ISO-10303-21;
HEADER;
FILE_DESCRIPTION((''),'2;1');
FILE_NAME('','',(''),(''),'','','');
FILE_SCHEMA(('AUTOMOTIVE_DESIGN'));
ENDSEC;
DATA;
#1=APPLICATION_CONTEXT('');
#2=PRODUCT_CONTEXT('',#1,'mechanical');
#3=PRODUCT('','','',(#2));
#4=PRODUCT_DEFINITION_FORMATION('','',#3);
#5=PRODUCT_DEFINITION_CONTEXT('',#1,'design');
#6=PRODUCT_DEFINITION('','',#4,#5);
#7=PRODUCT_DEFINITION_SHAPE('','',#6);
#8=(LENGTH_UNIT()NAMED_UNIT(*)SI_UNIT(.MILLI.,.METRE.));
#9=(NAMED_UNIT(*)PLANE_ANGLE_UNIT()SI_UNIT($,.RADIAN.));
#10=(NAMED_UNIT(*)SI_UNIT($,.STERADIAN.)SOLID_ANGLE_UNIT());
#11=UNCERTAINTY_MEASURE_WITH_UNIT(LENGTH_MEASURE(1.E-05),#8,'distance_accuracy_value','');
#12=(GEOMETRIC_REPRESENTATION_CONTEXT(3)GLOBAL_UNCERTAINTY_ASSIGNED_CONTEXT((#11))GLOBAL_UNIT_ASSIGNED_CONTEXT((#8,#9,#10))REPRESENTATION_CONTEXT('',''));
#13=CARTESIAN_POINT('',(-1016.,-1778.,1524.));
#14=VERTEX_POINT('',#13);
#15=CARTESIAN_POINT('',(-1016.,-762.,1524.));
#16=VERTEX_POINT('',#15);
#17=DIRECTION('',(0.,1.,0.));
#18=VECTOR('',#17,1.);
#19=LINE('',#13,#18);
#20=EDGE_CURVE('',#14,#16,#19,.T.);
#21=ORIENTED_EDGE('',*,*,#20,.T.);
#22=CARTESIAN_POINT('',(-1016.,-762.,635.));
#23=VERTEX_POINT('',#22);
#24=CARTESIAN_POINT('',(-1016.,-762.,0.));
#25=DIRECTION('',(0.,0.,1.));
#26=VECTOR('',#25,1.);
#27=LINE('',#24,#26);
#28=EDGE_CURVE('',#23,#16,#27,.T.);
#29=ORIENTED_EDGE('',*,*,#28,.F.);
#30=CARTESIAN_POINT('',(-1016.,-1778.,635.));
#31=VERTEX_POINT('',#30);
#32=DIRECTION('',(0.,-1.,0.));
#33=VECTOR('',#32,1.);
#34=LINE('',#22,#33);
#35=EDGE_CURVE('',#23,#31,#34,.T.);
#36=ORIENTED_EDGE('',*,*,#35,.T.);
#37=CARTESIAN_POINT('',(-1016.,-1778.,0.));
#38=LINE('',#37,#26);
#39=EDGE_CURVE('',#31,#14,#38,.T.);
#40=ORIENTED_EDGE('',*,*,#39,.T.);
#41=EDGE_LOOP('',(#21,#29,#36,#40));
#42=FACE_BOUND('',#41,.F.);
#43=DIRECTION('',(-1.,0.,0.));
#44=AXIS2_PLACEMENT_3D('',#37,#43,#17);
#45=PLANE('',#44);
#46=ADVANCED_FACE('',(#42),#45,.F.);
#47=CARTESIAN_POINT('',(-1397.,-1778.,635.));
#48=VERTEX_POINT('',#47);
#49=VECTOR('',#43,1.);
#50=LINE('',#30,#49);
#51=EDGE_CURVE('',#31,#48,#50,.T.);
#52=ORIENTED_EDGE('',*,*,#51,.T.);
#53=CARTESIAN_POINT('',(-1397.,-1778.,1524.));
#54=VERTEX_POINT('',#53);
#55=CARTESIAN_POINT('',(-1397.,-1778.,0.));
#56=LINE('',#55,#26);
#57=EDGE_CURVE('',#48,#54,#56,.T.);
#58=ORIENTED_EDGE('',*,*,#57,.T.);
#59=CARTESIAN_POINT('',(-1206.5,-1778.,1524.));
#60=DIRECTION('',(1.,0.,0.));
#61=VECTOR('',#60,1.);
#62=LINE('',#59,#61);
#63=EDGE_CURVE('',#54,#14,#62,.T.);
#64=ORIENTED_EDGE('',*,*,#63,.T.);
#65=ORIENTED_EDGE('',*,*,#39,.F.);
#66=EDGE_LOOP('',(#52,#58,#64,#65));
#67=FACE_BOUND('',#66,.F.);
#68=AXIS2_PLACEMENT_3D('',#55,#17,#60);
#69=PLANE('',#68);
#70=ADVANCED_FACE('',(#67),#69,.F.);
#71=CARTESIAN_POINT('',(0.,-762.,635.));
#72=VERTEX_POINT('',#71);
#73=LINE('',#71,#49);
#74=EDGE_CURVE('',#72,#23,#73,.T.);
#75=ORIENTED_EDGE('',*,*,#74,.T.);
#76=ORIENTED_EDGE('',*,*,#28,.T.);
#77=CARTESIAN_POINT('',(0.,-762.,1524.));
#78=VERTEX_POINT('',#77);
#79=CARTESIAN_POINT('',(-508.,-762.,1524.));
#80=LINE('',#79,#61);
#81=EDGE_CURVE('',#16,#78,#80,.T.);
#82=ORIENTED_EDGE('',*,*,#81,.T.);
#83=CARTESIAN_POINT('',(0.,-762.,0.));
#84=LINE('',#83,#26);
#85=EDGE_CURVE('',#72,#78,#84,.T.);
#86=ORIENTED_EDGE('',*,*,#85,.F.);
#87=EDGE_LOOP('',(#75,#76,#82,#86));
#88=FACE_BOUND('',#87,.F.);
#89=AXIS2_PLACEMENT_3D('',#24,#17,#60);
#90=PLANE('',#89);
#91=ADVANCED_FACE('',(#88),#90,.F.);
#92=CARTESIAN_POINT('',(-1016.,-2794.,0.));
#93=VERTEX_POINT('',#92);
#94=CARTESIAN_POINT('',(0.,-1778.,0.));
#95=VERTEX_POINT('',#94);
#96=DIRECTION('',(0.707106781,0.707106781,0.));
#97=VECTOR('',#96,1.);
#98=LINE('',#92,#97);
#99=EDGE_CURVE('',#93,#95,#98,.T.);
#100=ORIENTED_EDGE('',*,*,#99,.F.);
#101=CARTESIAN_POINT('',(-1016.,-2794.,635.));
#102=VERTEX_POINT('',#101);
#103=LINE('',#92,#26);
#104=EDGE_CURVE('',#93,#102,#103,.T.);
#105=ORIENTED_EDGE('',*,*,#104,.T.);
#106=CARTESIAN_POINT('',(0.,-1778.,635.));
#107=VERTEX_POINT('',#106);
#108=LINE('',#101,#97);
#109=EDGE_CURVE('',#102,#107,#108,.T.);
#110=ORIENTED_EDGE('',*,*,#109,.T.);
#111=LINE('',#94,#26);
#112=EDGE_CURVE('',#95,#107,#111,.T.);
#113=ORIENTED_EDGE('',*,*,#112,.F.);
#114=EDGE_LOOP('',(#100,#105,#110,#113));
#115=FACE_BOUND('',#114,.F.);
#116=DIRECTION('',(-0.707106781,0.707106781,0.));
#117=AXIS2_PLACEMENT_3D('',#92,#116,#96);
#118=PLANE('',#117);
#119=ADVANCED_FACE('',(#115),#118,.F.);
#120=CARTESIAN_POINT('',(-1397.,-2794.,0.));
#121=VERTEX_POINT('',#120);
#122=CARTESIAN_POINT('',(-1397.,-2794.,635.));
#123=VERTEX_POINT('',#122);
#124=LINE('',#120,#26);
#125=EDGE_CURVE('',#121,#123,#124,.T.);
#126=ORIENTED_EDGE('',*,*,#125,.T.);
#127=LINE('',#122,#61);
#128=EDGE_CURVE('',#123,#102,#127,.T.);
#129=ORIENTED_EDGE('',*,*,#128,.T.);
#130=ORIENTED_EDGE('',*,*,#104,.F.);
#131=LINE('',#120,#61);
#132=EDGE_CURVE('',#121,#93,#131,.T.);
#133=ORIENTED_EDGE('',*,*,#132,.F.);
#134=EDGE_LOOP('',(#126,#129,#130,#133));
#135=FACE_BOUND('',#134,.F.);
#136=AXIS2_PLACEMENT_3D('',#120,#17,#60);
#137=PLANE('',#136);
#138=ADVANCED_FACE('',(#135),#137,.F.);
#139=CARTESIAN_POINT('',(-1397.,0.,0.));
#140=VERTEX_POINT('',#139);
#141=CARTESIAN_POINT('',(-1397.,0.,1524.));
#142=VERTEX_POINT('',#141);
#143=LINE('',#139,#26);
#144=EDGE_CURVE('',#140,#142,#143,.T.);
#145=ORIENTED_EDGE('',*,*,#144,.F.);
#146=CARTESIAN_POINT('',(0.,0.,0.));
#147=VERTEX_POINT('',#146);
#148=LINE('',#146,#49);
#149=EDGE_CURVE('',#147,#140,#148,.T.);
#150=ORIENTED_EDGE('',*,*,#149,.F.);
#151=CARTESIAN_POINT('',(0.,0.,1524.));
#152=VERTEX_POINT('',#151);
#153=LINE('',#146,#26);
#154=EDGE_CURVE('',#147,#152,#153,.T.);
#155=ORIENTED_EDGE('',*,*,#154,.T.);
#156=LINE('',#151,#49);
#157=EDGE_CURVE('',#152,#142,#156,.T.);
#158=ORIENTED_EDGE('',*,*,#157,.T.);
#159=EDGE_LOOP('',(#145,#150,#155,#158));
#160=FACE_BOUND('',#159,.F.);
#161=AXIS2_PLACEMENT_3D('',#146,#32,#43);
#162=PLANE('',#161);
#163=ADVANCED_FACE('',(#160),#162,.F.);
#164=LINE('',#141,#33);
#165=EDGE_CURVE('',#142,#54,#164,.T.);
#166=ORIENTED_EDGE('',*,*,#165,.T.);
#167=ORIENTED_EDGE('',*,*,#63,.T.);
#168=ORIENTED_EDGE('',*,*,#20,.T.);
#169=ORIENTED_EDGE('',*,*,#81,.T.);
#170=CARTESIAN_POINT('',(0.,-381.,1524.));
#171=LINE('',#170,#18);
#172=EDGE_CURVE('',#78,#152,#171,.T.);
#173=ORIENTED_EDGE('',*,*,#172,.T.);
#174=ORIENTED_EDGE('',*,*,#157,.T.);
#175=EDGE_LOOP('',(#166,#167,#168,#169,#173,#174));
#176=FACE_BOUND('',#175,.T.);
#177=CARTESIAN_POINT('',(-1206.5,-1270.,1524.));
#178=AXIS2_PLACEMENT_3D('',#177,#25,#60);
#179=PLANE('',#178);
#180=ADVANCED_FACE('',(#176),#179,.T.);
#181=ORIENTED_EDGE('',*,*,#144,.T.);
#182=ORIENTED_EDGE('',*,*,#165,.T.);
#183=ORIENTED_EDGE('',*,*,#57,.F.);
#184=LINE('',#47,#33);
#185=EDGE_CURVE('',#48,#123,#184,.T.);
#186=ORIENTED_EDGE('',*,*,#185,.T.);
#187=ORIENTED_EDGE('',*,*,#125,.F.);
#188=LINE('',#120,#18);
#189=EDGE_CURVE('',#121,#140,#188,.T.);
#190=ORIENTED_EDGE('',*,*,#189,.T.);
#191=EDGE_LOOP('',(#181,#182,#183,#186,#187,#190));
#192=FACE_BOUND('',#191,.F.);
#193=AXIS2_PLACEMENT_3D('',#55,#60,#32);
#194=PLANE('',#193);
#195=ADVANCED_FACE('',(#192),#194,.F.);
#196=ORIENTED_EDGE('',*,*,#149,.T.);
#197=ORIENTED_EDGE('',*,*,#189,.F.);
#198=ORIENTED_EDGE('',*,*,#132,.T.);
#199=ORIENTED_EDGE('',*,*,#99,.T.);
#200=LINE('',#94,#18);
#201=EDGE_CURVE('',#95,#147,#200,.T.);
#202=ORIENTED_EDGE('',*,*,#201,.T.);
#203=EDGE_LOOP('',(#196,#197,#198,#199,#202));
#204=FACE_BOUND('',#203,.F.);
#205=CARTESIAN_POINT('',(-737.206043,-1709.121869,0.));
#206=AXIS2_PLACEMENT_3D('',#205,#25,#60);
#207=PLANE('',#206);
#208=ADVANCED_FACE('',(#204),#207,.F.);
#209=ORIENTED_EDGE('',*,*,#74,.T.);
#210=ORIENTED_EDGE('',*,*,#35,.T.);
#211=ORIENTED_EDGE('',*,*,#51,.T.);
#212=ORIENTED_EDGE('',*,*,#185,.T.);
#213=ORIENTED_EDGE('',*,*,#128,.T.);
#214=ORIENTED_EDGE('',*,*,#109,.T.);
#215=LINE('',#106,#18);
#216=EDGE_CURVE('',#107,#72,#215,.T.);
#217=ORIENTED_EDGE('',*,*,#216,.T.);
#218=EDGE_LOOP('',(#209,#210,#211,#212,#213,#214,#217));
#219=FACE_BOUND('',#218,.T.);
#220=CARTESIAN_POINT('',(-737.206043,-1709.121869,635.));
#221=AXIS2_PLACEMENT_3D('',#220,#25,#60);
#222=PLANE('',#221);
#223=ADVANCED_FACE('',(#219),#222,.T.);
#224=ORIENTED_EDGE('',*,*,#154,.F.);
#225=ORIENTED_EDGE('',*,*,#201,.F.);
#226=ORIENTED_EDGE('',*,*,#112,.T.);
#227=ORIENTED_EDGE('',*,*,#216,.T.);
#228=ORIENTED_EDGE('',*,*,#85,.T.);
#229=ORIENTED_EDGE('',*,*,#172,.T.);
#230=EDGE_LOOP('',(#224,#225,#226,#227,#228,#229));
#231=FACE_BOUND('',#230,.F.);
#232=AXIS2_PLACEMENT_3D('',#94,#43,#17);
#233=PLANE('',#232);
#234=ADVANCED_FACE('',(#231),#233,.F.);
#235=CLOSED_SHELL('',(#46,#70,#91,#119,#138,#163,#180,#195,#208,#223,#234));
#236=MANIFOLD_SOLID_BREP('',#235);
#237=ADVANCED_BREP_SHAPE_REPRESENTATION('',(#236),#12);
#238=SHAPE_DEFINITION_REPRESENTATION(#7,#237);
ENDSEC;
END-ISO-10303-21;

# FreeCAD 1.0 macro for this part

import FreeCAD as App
import Part
import Sketcher
Q = App.Units.Quantity

doc = App.newDocument("Part")
body = doc.addObject("PartDesign::Body", "Body")

# Sketch on XY plane
sketch1 = body.newObject("Sketcher::SketchObject", "Sketch")
sketch1.AttachmentSupport = (doc.getObject("XY_Plane"), [""])
sketch1.MapMode = "FlatFace"
sketch1.addGeometry([
    Part.LineSegment(App.Vector(-1397, -1778, 0), App.Vector(-1016, -1778, 0)),  # 0
    Part.LineSegment(App.Vector(-1016, -1778, 0), App.Vector(-1016, -762, 0)),  # 1
    Part.LineSegment(App.Vector(-1016, -762, 0), App.Vector(0, -762, 0)),  # 2
    Part.LineSegment(App.Vector(0, -762, 0), App.Vector(0, 0, 0)),  # 3
    Part.LineSegment(App.Vector(0, 0, 0), App.Vector(-1397, 0, 0)),  # 4
    Part.LineSegment(App.Vector(-1397, 0, 0), App.Vector(-1397, -1778, 0)),  # 5
], False)
sketch1.addConstraint([
    Sketcher.Constraint("Coincident", 0, 2, 1, 1),
    Sketcher.Constraint("Coincident", 1, 2, 2, 1),
    Sketcher.Constraint("Coincident", 2, 2, 3, 1),
    Sketcher.Constraint("Coincident", 3, 2, 4, 1),
    Sketcher.Constraint("Coincident", 4, 2, 5, 1),
    Sketcher.Constraint("Coincident", 5, 2, 0, 1),
    Sketcher.Constraint("Horizontal", 0),
    Sketcher.Constraint("Vertical", 1),
    Sketcher.Constraint("Horizontal", 2),
    Sketcher.Constraint("Vertical", 3),
    Sketcher.Constraint("Horizontal", 4),
    Sketcher.Constraint("Vertical", 5),
    Sketcher.Constraint("Coincident", 3, 2, -1, 1),
    Sketcher.Constraint("Equal", 2, 1),
    Sketcher.Constraint("DistanceX", 0, 1, 0, 2, Q("15 in")),
    Sketcher.Constraint("DistanceX", 2, 1, 2, 2, Q("40 in")),
    Sketcher.Constraint("DistanceY", 3, 1, 3, 2, Q("30 in")),
])
pad1 = body.newObject("PartDesign::Pad", "Pad")
pad1.Profile = sketch1
pad1.Length = Q("60 in")

# Sketch on XY plane
sketch2 = body.newObject("Sketcher::SketchObject", "Sketch001")
sketch2.AttachmentSupport = (doc.getObject("XY_Plane"), [""])
sketch2.MapMode = "FlatFace"
sketch2.addGeometry([
    Part.LineSegment(App.Vector(0, -1778, 0), App.Vector(0, -762, 0)),  # 0
    Part.LineSegment(App.Vector(0, -762, 0), App.Vector(-1016, -762, 0)),  # 1
    Part.LineSegment(App.Vector(-1016, -762, 0), App.Vector(-1016, -1778, 0)),  # 2
    Part.LineSegment(App.Vector(-1016, -1778, 0), App.Vector(-1397, -1778, 0)),  # 3
    Part.LineSegment(App.Vector(-1397, -1778, 0), App.Vector(-1397, -2794, 0)),  # 4
    Part.LineSegment(App.Vector(-1397, -2794, 0), App.Vector(-1016, -2794, 0)),  # 5
    Part.LineSegment(App.Vector(-1016, -2794, 0), App.Vector(0, -1778, 0)),  # 6
], False)
sketch2.addConstraint([
    Sketcher.Constraint("Coincident", 0, 2, 1, 1),
    Sketcher.Constraint("Coincident", 1, 2, 2, 1),
    Sketcher.Constraint("Coincident", 2, 2, 3, 1),
    Sketcher.Constraint("Coincident", 3, 2, 4, 1),
    Sketcher.Constraint("Coincident", 4, 2, 5, 1),
    Sketcher.Constraint("Coincident", 5, 2, 6, 1),
    Sketcher.Constraint("Coincident", 6, 2, 0, 1),
    Sketcher.Constraint("Vertical", 0),
    Sketcher.Constraint("Horizontal", 1),
    Sketcher.Constraint("Vertical", 2),
    Sketcher.Constraint("Horizontal", 3),
    Sketcher.Constraint("Vertical", 4),
    Sketcher.Constraint("Horizontal", 5),
    Sketcher.Constraint("PointOnObject", 0, 2, -2),
    Sketcher.Constraint("Horizontal", 3, 2, 6, 2),
    Sketcher.Constraint("Vertical", 2, 2, 5, 2),
    Sketcher.Constraint("Equal", 1, 0),
    Sketcher.Constraint("Equal", 2, 4),
    Sketcher.Constraint("DistanceX", 1, 2, 1, 1, Q("40 in")),
    Sketcher.Constraint("DistanceX", 3, 2, 3, 1, Q("15 in")),
    Sketcher.Constraint("DistanceY", 0, 2, -1, 1, Q("30 in")),
])
pad2 = body.newObject("PartDesign::Pad", "Pad001")
pad2.Profile = sketch2
pad2.Length = Q("25 in")

doc.recompute()
